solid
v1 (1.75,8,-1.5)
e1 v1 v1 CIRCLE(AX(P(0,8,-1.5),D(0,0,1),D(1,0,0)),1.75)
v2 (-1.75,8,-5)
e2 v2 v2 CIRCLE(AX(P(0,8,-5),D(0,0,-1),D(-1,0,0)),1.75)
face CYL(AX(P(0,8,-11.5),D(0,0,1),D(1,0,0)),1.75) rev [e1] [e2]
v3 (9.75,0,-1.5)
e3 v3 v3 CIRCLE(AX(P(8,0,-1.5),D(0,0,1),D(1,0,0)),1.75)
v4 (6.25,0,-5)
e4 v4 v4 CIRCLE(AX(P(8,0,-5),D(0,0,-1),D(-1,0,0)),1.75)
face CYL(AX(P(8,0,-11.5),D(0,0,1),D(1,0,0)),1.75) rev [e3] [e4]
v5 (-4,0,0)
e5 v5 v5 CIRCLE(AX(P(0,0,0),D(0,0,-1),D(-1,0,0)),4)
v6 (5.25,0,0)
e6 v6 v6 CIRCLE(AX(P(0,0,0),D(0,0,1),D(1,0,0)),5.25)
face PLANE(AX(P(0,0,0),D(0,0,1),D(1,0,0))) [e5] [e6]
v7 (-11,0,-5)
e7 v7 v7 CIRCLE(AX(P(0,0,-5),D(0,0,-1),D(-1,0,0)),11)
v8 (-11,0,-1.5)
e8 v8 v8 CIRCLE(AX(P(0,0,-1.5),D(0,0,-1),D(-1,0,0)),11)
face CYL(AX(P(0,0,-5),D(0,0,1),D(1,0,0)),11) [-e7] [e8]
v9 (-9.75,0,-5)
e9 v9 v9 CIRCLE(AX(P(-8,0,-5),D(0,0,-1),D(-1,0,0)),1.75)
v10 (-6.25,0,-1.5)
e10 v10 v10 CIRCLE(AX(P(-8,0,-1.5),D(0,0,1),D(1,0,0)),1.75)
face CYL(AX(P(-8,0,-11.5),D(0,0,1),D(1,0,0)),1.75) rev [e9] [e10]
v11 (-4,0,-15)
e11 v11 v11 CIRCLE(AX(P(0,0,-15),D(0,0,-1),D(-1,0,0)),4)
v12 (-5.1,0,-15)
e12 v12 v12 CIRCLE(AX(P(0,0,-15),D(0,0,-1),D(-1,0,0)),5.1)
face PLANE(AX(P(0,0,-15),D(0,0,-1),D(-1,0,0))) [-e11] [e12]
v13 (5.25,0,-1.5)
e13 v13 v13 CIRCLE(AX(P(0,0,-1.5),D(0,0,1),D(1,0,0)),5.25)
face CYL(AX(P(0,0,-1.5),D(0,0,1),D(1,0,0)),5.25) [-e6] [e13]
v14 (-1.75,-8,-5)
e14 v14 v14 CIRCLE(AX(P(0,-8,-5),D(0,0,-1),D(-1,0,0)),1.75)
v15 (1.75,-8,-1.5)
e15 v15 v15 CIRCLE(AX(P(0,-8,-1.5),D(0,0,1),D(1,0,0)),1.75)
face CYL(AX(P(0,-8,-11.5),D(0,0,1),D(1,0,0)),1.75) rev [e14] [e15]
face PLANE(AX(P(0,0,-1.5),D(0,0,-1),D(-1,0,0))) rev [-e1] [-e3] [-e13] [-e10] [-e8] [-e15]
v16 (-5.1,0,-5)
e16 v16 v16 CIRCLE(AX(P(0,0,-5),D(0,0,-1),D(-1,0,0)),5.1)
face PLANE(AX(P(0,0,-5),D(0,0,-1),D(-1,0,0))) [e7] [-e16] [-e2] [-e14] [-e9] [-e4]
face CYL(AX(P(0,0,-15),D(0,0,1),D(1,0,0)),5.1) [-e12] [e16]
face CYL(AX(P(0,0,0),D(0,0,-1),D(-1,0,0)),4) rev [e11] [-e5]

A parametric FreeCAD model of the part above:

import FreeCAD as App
import Part
import Sketcher

V = App.Vector

doc = App.newDocument("Part")
body = doc.addObject("PartDesign::Body", "Body")

# Sketch on XY plane
sketch1 = body.newObject("Sketcher::SketchObject", "Sketch")
sketch1.AttachmentSupport = (doc.getObject("XY_Plane"), [""])
sketch1.MapMode = "FlatFace"
sketch1.addGeometry(Part.Circle(V(0, 0, 0), V(0, 0, 1), 5.25), False)
sketch1.addConstraint([
    Sketcher.Constraint("Coincident", 0, 3, -1, 1),
    Sketcher.Constraint("Diameter", 0, 10.5),
])
pad1 = body.newObject("PartDesign::Pad", "Pad")
pad1.Profile = sketch1
pad1.Length = 1.5
pad1.Reversed = True

# Sketch on XY plane
sketch2 = body.newObject("Sketcher::SketchObject", "Sketch001")
sketch2.AttachmentSupport = (doc.getObject("XY_Plane"), [""])
sketch2.MapMode = "FlatFace"
sketch2.AttachmentOffset = App.Placement(V(0, 0, -1.5), App.Rotation())
sketch2.addGeometry(Part.Circle(V(0, 0, 0), V(0, 0, 1), 11), False)
sketch2.addConstraint([
    Sketcher.Constraint("Coincident", 0, 3, -1, 1),
    Sketcher.Constraint("Diameter", 0, 22.0),
])
pad2 = body.newObject("PartDesign::Pad", "Pad001")
pad2.Profile = sketch2
pad2.Length = 3.5
pad2.Reversed = True

# Sketch on XY plane
sketch3 = body.newObject("Sketcher::SketchObject", "Sketch002")
sketch3.AttachmentSupport = (doc.getObject("XY_Plane"), [""])
sketch3.MapMode = "FlatFace"
sketch3.AttachmentOffset = App.Placement(V(0, 0, -5), App.Rotation())
sketch3.addGeometry(Part.Circle(V(0, 0, 0), V(0, 0, 1), 5.1), False)
sketch3.addConstraint([
    Sketcher.Constraint("Coincident", 0, 3, -1, 1),
    Sketcher.Constraint("Diameter", 0, 10.2),
])
pad3 = body.newObject("PartDesign::Pad", "Pad002")
pad3.Profile = sketch3
pad3.Length = 10
pad3.Reversed = True

# Sketch on XY plane
sketch4 = body.newObject("Sketcher::SketchObject", "Sketch003")
sketch4.AttachmentSupport = (doc.getObject("XY_Plane"), [""])
sketch4.MapMode = "FlatFace"
sketch4.AttachmentOffset = App.Placement(V(0, 0, -15), App.Rotation())
sketch4.addGeometry(Part.Circle(V(0, 0, 0), V(0, 0, 1), 4), False)
sketch4.addConstraint([
    Sketcher.Constraint("Coincident", 0, 3, -1, 1),
    Sketcher.Constraint("Diameter", 0, 8.0),
])
pocket1 = body.newObject("PartDesign::Pocket", "Pocket")
pocket1.Profile = sketch4
pocket1.Type = "ThroughAll"
pocket1.Reversed = True

# Sketch on XY plane
sketch5 = body.newObject("Sketcher::SketchObject", "Sketch004")
sketch5.AttachmentSupport = (doc.getObject("XY_Plane"), [""])
sketch5.MapMode = "FlatFace"
sketch5.AttachmentOffset = App.Placement(V(0, 0, -1.5), App.Rotation())
sketch5.addGeometry([
    Part.Circle(V(-8, 0, 0), V(0, 0, 1), 1.75),
    Part.Circle(V(0, 8, 0), V(0, 0, 1), 1.75),
    Part.Circle(V(8, 0, 0), V(0, 0, 1), 1.75),
    Part.Circle(V(0, -8, 0), V(0, 0, 1), 1.75),
], False)
sketch5.addConstraint([
    Sketcher.Constraint("Equal", 0, 1),
    Sketcher.Constraint("Equal", 1, 2),
    Sketcher.Constraint("Equal", 2, 3),
    Sketcher.Constraint("Symmetric", 0, 3, 2, 3, -1, 1),
    Sketcher.Constraint("Symmetric", 1, 3, 3, 3, -1, 1),
    Sketcher.Constraint("PointOnObject", 0, 3, -1),
    Sketcher.Constraint("PointOnObject", 1, 3, -2),
    Sketcher.Constraint("Diameter", 0, 3.5),
    Sketcher.Constraint("DistanceX", 0, 3, -1, 1, 8.0),
    Sketcher.Constraint("DistanceY", -1, 1, 1, 3, 8.0),
])
pocket2 = body.newObject("PartDesign::Pocket", "Pocket001")
pocket2.Profile = sketch5
pocket2.Length = 10

doc.recompute()
